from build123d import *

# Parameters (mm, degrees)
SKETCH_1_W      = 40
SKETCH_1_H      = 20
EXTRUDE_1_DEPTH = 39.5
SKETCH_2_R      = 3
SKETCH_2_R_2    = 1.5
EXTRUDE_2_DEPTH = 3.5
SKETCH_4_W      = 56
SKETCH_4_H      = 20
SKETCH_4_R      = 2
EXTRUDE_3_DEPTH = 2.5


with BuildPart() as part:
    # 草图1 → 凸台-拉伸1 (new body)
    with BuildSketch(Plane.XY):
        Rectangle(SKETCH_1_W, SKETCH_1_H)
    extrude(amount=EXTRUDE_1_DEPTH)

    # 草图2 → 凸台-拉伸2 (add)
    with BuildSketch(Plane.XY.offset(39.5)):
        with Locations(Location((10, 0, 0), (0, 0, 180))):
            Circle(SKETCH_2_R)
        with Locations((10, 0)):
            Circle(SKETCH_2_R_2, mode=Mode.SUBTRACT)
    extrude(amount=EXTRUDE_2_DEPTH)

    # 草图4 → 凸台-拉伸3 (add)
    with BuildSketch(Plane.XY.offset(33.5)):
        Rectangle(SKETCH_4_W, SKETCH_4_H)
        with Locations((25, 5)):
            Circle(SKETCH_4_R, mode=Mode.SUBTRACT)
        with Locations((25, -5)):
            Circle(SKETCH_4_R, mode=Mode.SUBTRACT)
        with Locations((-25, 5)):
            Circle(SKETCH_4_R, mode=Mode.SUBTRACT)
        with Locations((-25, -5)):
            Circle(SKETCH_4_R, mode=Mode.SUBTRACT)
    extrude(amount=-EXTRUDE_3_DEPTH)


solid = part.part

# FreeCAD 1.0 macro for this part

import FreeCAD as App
import Part
import Sketcher
Q = App.Units.Quantity


def add_polygon(sketch, points):
    """Adds a closed chain of lines whose ends are joined by coincident constraints."""
    first, n = sketch.GeometryCount, len(points)
    for a, b in zip(points, points[1:] + points[:1]):
        sketch.addGeometry(Part.LineSegment(App.Vector(*a, 0), App.Vector(*b, 0)), False)
    for i in range(n):
        sketch.addConstraint(Sketcher.Constraint("Coincident", first + i, 2, first + (i + 1) % n, 1))

doc = App.newDocument("Part")
body = doc.addObject("PartDesign::Body", "Body")

# Sketch on XY plane
sketch1 = doc.addObject("Sketcher::SketchObject", "Sketch")
body.addObject(sketch1)
sketch1.AttachmentSupport = (doc.XY_Plane, [""])
sketch1.MapMode = "FlatFace"
add_polygon(sketch1, [(-20, 10), (-20, -10), (20, -10), (20, 10)])  # lines 0-3
sketch1.addConstraint([
    Sketcher.Constraint("Vertical", 0),
    Sketcher.Constraint("Horizontal", 1),
    Sketcher.Constraint("Vertical", 2),
    Sketcher.Constraint("Horizontal", 3),
    Sketcher.Constraint("Symmetric", 0, 2, 2, 2, -1, 1),
    Sketcher.Constraint("DistanceX", 1, 1, 1, 2, Q("40 mm")),
    Sketcher.Constraint("DistanceY", 0, 2, 0, 1, Q("20 mm")),
])
pad1 = doc.addObject("PartDesign::Pad", "Pad")
body.addObject(pad1)
pad1.Profile = sketch1
pad1.Length = 39.5

# Sketch on XY plane
sketch2 = doc.addObject("Sketcher::SketchObject", "Sketch001")
body.addObject(sketch2)
sketch2.AttachmentSupport = (doc.XY_Plane, [""])
sketch2.MapMode = "FlatFace"
sketch2.AttachmentOffset = App.Placement(App.Vector(0, 0, 39.5), App.Rotation())
sketch2.addGeometry([
    Part.Circle(App.Vector(10, 0, 0), App.Vector(0, 0, 1), 3),
    Part.Circle(App.Vector(10, 0, 0), App.Vector(0, 0, 1), 1.5),
], False)
sketch2.addConstraint([
    Sketcher.Constraint("Coincident", 1, 3, 0, 3),
    Sketcher.Constraint("PointOnObject", 0, 3, -1),
    Sketcher.Constraint("Diameter", 0, Q("6 mm")),
    Sketcher.Constraint("Diameter", 1, Q("3 mm")),
    Sketcher.Constraint("DistanceX", -1, 1, 0, 3, Q("10 mm")),
])
pad2 = doc.addObject("PartDesign::Pad", "Pad001")
body.addObject(pad2)
pad2.Profile = sketch2
pad2.Length = 3.5

# Sketch on XY plane
sketch3 = doc.addObject("Sketcher::SketchObject", "Sketch002")
body.addObject(sketch3)
sketch3.AttachmentSupport = (doc.XY_Plane, [""])
sketch3.MapMode = "FlatFace"
sketch3.AttachmentOffset = App.Placement(App.Vector(0, 0, 33.5), App.Rotation())
add_polygon(sketch3, [(-28, 10), (-28, -10), (28, -10), (28, 10)])  # lines 0-3
sketch3.addGeometry(Part.Circle(App.Vector(-25, -5, 0), App.Vector(0, 0, 1), 2), False)  # 4
sketch3.addGeometry(Part.Circle(App.Vector(25, -5, 0), App.Vector(0, 0, 1), 2), False)  # 5
sketch3.addGeometry(Part.Circle(App.Vector(-25, 5, 0), App.Vector(0, 0, 1), 2), False)  # 6
sketch3.addGeometry(Part.Circle(App.Vector(25, 5, 0), App.Vector(0, 0, 1), 2), False)  # 7
sketch3.addConstraint([
    Sketcher.Constraint("Vertical", 0),
    Sketcher.Constraint("Horizontal", 1),
    Sketcher.Constraint("Vertical", 2),
    Sketcher.Constraint("Horizontal", 3),
    Sketcher.Constraint("Equal", 4, 5),
    Sketcher.Constraint("Equal", 5, 6),
    Sketcher.Constraint("Equal", 6, 7),
    Sketcher.Constraint("Symmetric", 5, 3, 6, 3, -1, 1),
    Sketcher.Constraint("Symmetric", 4, 3, 7, 3, -1, 1),
    Sketcher.Constraint("Symmetric", 0, 2, 2, 2, -1, 1),
    Sketcher.Constraint("Symmetric", 4, 3, 5, 3, -2),
    Sketcher.Constraint("Diameter", 4, Q("4 mm")),
    Sketcher.Constraint("DistanceX", 1, 1, 1, 2, Q("56 mm")),
    Sketcher.Constraint("DistanceY", 0, 2, 0, 1, Q("20 mm")),
    Sketcher.Constraint("DistanceX", 4, 3, -1, 1, Q("25 mm")),
    Sketcher.Constraint("DistanceY", 4, 3, -1, 1, Q("5 mm")),
])
pad3 = doc.addObject("PartDesign::Pad", "Pad002")
body.addObject(pad3)
pad3.Profile = sketch3
pad3.Length = 2.5
pad3.Reversed = True

doc.recompute()
